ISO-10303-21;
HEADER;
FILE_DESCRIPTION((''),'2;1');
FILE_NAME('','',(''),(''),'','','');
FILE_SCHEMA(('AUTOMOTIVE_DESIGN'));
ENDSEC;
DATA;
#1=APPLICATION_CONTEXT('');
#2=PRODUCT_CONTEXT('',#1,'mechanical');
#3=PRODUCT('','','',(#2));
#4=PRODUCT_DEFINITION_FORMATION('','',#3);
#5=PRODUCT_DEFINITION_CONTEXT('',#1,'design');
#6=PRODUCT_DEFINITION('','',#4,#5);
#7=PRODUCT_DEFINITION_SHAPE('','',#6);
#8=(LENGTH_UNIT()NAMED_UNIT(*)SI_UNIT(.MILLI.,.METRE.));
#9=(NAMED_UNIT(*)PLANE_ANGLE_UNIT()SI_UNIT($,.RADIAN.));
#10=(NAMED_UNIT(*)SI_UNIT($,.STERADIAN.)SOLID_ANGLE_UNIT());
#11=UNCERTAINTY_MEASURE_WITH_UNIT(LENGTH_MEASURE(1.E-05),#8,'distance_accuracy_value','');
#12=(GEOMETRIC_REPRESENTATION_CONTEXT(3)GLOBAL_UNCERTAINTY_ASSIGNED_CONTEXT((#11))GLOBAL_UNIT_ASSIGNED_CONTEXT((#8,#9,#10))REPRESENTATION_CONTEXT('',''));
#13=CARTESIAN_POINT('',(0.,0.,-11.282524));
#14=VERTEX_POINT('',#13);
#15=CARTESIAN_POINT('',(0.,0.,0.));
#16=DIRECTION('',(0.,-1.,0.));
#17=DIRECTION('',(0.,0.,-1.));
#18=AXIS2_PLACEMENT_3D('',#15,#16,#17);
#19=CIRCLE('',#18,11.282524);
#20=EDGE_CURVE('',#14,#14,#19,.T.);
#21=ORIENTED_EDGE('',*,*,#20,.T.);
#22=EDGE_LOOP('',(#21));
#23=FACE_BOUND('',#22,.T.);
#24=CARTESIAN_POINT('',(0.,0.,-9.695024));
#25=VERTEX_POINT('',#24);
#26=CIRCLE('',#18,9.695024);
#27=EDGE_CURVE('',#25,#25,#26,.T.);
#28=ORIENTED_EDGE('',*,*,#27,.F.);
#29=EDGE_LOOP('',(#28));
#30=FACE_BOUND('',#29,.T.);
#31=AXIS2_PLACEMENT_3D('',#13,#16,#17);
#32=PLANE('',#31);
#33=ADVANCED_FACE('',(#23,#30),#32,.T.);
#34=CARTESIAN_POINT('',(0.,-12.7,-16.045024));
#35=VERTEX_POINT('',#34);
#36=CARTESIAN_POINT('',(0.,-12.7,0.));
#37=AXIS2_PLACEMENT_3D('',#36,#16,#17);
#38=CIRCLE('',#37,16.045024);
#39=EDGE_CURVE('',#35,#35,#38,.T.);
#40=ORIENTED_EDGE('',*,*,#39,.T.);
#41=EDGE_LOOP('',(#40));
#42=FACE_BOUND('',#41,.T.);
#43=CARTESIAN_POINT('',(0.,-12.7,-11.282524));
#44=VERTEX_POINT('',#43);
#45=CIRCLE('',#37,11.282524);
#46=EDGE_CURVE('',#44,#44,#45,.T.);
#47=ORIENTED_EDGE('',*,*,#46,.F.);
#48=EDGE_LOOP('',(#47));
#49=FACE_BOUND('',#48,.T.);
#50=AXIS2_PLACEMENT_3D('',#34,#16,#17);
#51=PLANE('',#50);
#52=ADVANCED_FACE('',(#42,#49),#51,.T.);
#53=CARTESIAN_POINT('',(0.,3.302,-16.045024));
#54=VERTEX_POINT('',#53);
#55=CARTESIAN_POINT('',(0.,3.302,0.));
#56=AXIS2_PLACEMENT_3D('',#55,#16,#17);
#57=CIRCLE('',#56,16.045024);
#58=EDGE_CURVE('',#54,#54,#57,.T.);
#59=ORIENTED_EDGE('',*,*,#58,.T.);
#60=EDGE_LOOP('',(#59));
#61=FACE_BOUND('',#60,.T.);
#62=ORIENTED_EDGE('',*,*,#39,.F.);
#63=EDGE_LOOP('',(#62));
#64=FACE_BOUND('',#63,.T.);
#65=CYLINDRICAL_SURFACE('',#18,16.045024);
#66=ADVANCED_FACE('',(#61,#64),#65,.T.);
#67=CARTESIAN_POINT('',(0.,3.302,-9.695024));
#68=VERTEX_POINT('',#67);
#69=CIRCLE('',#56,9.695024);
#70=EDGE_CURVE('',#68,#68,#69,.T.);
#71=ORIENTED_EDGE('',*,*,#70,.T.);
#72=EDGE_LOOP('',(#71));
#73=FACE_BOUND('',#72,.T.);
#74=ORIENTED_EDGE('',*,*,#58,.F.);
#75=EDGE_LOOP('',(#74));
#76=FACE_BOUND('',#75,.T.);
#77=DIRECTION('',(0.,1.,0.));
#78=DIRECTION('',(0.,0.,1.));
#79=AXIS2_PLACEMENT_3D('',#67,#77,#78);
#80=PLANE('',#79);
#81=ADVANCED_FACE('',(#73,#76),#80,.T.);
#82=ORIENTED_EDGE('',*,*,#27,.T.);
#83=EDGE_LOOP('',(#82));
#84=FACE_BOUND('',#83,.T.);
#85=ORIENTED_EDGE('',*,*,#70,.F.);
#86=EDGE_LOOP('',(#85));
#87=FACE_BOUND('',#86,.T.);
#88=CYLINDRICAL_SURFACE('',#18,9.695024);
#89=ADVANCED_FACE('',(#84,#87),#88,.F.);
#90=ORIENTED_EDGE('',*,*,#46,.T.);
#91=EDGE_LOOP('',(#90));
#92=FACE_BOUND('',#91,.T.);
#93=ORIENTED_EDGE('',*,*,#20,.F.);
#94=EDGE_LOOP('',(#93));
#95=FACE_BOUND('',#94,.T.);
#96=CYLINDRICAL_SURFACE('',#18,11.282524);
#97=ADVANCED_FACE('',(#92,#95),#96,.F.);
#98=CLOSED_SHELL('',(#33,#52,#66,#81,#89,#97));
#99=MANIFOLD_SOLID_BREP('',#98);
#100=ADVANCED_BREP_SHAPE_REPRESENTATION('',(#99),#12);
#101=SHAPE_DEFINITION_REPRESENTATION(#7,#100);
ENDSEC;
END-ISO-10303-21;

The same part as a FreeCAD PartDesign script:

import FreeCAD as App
import Part
import Sketcher

V = App.Vector
Q = App.Units.Quantity


def add_polygon(sketch, points):
    """Adds a closed chain of lines whose ends are joined by coincident constraints."""
    first, n = sketch.GeometryCount, len(points)
    for a, b in zip(points, points[1:] + points[:1]):
        sketch.addGeometry(Part.LineSegment(App.Vector(*a, 0), App.Vector(*b, 0)), False)
    for i in range(n):
        sketch.addConstraint(Sketcher.Constraint("Coincident", first + i, 2, first + (i + 1) % n, 1))

doc = App.newDocument("Part")
params = doc.addObject("Spreadsheet::Sheet", "Params")
for row, (alias, value) in enumerate([
    ("sketch1_width", "0.5 in"),
    ("sketch1_width2", "0.13 in"),
    ("sketch1_height", "0.25 in"),
    ("sketch1_height2", "0.0625 in"),
    ("revolution_angle", "360 deg"),
], start=1):
    params.set(f"A{row}", alias)
    params.set(f"B{row}", "=" + value)
    params.setAlias(f"B{row}", alias)

body = doc.addObject("PartDesign::Body", "Body")

sketch1 = doc.addObject("Sketcher::SketchObject", "Sketch")
body.addObject(sketch1)
sketch1.AttachmentSupport = (doc.YZ_Plane, [""])
sketch1.MapMode = "FlatFace"
add_polygon(sketch1, [(3.3, -9.7), (0, -9.7), (0, -11.3), (-12.7, -11.3), (-12.7, -16), (3.3, -16)])
sketch1.addConstraint(Sketcher.Constraint("Horizontal", 0))
sketch1.addConstraint(Sketcher.Constraint("Vertical", 1))
sketch1.addConstraint(Sketcher.Constraint("Horizontal", 2))
sketch1.addConstraint(Sketcher.Constraint("Vertical", 3))
sketch1.addConstraint(Sketcher.Constraint("Horizontal", 4))
sketch1.addConstraint(Sketcher.Constraint("Vertical", 5))
sketch1.addConstraint(Sketcher.Constraint("PointOnObject", 0, 2, -2))
sketch1.addConstraint(Sketcher.Constraint("DistanceX", 2, 2, 2, 1, Q("0.5 in")))
sketch1.addConstraint(Sketcher.Constraint("DistanceX", 0, 2, 0, 1, Q("0.13 in")))
sketch1.addConstraint(Sketcher.Constraint("DistanceY", 5, 1, 5, 2, Q("0.25 in")))
sketch1.addConstraint(Sketcher.Constraint("DistanceY", 1, 2, 1, 1, Q("0.0625 in")))
sketch1.addConstraint(Sketcher.Constraint("DistanceY", 0, 2, -1, 1, 9.695024))
sketch1.setExpression("Constraints[13]", "Params.sketch1_width")
sketch1.setExpression("Constraints[14]", "Params.sketch1_width2")
sketch1.setExpression("Constraints[15]", "Params.sketch1_height")
sketch1.setExpression("Constraints[16]", "Params.sketch1_height2")
revolution = doc.addObject("PartDesign::Revolution", "Revolution")
body.addObject(revolution)
revolution.Profile = sketch1
revolution.ReferenceAxis = (sketch1, ["H_Axis"])
revolution.setExpression("Angle", "Params.revolution_angle")

doc.recompute()
